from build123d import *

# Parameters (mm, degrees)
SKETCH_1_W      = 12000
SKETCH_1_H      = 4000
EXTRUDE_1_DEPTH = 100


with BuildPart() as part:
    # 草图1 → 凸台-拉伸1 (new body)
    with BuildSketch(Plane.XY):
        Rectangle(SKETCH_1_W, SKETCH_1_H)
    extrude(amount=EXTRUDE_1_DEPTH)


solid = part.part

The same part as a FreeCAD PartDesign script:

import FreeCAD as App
import Part
import Sketcher
from FreeCAD import Vector

doc = App.newDocument("Part")
body = doc.addObject("PartDesign::Body", "Body")

# Sketch on XY plane
sketch1 = body.newObject("Sketcher::SketchObject", "Sketch")
sketch1.AttachmentSupport = (doc.getObject("XY_Plane"), [""])
sketch1.MapMode = "FlatFace"
sketch1.addGeometry([
    Part.LineSegment(Vector(-6000, 2000, 0), Vector(-6000, -2000, 0)),
    Part.LineSegment(Vector(-6000, -2000, 0), Vector(6000, -2000, 0)),
    Part.LineSegment(Vector(6000, -2000, 0), Vector(6000, 2000, 0)),
    Part.LineSegment(Vector(6000, 2000, 0), Vector(-6000, 2000, 0)),
], False)
sketch1.addConstraint([
    Sketcher.Constraint("Coincident", 0, 2, 1, 1),
    Sketcher.Constraint("Coincident", 1, 2, 2, 1),
    Sketcher.Constraint("Coincident", 2, 2, 3, 1),
    Sketcher.Constraint("Coincident", 3, 2, 0, 1),
    Sketcher.Constraint("Vertical", 0),
    Sketcher.Constraint("Horizontal", 1),
    Sketcher.Constraint("Vertical", 2),
    Sketcher.Constraint("Horizontal", 3),
    Sketcher.Constraint("Symmetric", 0, 2, 2, 2, -1, 1),
    Sketcher.Constraint("DistanceX", 1, 1, 1, 2, 12000.0),
    Sketcher.Constraint("DistanceY", 0, 2, 0, 1, 4000.0),
])
pad1 = body.newObject("PartDesign::Pad", "Pad")
pad1.Profile = sketch1
pad1.Length = 100

doc.recompute()
